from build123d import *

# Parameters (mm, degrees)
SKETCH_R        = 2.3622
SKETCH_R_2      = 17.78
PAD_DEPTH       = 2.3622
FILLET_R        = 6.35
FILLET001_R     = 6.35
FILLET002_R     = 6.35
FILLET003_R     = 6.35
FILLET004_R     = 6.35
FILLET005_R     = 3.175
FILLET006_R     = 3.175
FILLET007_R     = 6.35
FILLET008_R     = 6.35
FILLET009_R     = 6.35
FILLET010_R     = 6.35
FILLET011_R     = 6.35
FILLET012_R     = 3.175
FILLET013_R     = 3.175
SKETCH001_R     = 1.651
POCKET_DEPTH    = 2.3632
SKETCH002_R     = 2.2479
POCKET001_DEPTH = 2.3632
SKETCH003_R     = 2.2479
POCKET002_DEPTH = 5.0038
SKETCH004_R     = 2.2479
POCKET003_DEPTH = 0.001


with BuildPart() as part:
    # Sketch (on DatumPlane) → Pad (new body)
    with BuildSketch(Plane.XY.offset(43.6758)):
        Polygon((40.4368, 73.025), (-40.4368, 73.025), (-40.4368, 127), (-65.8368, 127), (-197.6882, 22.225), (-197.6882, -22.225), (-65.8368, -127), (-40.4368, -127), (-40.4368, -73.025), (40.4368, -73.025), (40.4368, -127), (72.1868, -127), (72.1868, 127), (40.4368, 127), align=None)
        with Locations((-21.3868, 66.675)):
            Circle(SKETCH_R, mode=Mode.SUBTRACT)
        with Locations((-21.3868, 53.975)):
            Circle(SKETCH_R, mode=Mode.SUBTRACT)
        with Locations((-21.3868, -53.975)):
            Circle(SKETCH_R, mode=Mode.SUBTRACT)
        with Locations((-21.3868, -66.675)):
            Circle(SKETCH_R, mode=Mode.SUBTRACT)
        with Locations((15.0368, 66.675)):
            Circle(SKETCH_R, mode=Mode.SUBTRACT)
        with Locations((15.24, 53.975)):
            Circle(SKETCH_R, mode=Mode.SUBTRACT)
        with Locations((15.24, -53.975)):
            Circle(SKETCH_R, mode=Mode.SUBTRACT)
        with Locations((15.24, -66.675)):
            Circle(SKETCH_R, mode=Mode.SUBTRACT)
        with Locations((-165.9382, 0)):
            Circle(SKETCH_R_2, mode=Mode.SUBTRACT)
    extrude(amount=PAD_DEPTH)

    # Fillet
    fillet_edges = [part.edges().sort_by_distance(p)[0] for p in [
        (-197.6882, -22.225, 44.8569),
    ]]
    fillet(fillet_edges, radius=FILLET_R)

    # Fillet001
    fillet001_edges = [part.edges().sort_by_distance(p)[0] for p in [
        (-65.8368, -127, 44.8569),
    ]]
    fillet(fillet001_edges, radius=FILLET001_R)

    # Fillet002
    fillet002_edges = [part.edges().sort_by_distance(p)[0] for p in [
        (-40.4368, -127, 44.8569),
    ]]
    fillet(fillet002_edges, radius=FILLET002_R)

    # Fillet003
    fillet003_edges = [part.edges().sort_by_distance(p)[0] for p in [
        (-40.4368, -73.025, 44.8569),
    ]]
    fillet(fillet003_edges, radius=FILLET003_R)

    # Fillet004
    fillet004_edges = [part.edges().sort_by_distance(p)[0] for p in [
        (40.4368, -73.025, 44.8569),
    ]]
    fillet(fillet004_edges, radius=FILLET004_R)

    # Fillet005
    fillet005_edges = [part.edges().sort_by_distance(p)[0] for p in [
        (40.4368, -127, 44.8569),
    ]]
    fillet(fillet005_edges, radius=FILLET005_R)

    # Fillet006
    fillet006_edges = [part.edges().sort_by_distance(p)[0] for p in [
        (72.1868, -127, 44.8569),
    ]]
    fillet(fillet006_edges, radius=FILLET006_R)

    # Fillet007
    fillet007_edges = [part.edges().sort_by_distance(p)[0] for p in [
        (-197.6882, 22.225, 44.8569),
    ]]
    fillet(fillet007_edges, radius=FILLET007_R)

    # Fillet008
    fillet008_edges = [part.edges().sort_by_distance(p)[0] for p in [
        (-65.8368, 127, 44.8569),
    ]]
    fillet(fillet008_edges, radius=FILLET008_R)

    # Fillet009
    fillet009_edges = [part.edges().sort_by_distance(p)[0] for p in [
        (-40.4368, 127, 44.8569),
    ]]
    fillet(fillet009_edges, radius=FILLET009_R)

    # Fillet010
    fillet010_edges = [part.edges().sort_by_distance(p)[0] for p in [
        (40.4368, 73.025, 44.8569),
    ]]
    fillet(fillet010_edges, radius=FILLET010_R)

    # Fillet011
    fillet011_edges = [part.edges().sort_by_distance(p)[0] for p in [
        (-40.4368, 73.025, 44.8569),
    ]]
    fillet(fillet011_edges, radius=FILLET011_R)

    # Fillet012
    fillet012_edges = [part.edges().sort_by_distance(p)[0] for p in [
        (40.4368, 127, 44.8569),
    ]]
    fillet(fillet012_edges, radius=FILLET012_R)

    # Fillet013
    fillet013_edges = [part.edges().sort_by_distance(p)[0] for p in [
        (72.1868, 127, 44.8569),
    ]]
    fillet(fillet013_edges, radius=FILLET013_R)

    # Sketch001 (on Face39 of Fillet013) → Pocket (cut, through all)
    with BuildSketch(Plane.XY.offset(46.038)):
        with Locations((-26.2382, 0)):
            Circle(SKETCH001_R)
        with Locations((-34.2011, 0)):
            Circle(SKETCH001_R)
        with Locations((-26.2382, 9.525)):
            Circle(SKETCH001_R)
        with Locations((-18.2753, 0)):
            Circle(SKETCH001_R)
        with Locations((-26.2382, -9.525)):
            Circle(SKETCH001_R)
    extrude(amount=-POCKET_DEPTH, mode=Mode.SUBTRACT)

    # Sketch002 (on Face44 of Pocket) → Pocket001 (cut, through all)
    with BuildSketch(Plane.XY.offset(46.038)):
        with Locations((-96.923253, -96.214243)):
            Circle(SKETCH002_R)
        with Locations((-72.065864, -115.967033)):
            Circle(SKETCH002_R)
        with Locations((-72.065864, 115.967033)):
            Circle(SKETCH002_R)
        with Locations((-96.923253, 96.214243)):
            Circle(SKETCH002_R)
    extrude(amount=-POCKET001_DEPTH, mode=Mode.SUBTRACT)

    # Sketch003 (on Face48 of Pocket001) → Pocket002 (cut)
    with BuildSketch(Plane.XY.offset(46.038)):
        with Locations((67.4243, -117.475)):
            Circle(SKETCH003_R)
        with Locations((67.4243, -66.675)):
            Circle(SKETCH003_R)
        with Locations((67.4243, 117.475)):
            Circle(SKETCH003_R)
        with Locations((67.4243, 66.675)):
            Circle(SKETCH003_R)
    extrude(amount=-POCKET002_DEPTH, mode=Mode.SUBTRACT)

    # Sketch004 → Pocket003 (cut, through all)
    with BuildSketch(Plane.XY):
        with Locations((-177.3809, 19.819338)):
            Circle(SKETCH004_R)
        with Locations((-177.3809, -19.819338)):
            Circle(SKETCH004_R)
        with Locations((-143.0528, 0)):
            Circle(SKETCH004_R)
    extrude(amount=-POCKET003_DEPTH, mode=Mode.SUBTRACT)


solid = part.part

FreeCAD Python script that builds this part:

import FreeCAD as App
import Part
import Sketcher

V = App.Vector
Q = App.Units.Quantity


def edges_at(feature, points):
    """Names of the edges that pass closest to the given points."""
    edges = feature.Shape.Edges
    near = lambda p: min(range(len(edges)), key=lambda i: edges[i].distToShape(Part.Vertex(*p))[0])
    return sorted({f"Edge{near(p) + 1}" for p in points})


def add_polygon(sketch, points):
    """Adds a closed chain of lines whose ends are joined by coincident constraints."""
    first, n = sketch.GeometryCount, len(points)
    for a, b in zip(points, points[1:] + points[:1]):
        sketch.addGeometry(Part.LineSegment(App.Vector(*a, 0), App.Vector(*b, 0)), False)
    for i in range(n):
        sketch.addConstraint(Sketcher.Constraint("Coincident", first + i, 2, first + (i + 1) % n, 1))

doc = App.newDocument("Part")
params = doc.addObject("Spreadsheet::Sheet", "Params")
for row, (alias, value) in enumerate([
    ("sketch1_diameter", "1.4 in"),
    ("sketch1_width", "1 in"),
    ("sketch1_height", "10 in"),
    ("sketch1_diameter2", "0.186 in"),
    ("sketch1_width2", "1.25 in"),
    ("pad1_length", "0.093 in"),
    ("fillet_radius", "0.25 in"),
    ("fillet2_radius", "0.25 in"),
    ("fillet3_radius", "0.25 in"),
    ("fillet4_radius", "0.25 in"),
    ("fillet5_radius", "0.25 in"),
    ("fillet6_radius", "0.125 in"),
    ("fillet7_radius", "0.125 in"),
    ("fillet8_radius", "0.25 in"),
    ("fillet9_radius", "0.25 in"),
    ("fillet10_radius", "0.25 in"),
    ("fillet11_radius", "0.25 in"),
    ("fillet12_radius", "0.25 in"),
    ("fillet13_radius", "0.125 in"),
    ("fillet14_radius", "0.125 in"),
    ("sketch2_diameter", "0.13 in"),
    ("sketch3_diameter", "0.177 in"),
    ("sketch4_diameter", "0.177 in"),
    ("pocket3_length", "0.197 in"),
    ("sketch5_diameter", "0.177 in"),
], start=1):
    params.set(f"A{row}", alias)
    params.set(f"B{row}", "=" + value)
    params.setAlias(f"B{row}", alias)

body = doc.addObject("PartDesign::Body", "Body")

sketch1 = doc.addObject("Sketcher::SketchObject", "Sketch")
body.addObject(sketch1)
sketch1.AttachmentSupport = (doc.XY_Plane, [""])
sketch1.MapMode = "FlatFace"
sketch1.AttachmentOffset = App.Placement(V(0, 0, 43.6758), App.Rotation())
add_polygon(sketch1, [(40.4368, 73.025), (-40.4368, 73.025), (-40.4368, 127), (-65.8368, 127), (-197.6882, 22.225), (-197.6882, -22.225), (-65.8368, -127), (-40.4368, -127), (-40.4368, -73.025), (40.4368, -73.025), (40.4368, -127), (72.1868, -127), (72.1868, 127), (40.4368, 127)])
sketch1.addGeometry(Part.Circle(V(-21.3868, -66.675, 0), V(0, 0, 1), 2.3622), False)
sketch1.addGeometry(Part.Circle(V(-21.3868, -53.975, 0), V(0, 0, 1), 2.3622), False)
sketch1.addGeometry(Part.Circle(V(15.24, -66.675, 0), V(0, 0, 1), 2.3622), False)
sketch1.addGeometry(Part.Circle(V(15.24, -53.975, 0), V(0, 0, 1), 2.3622), False)
sketch1.addGeometry(Part.Circle(V(-165.9382, 0, 0), V(0, 0, 1), 17.78), False)
sketch1.addGeometry(Part.Circle(V(-21.3868, 53.975, 0), V(0, 0, 1), 2.3622), False)
sketch1.addGeometry(Part.Circle(V(-21.3868, 66.675, 0), V(0, 0, 1), 2.3622), False)
sketch1.addGeometry(Part.Circle(V(15.24, 53.975, 0), V(0, 0, 1), 2.3622), False)
sketch1.addGeometry(Part.Circle(V(15.0368, 66.675, 0), V(0, 0, 1), 2.3622), False)
sketch1.addConstraint(Sketcher.Constraint("Horizontal", 0))
sketch1.addConstraint(Sketcher.Constraint("Vertical", 1))
sketch1.addConstraint(Sketcher.Constraint("Horizontal", 2))
sketch1.addConstraint(Sketcher.Constraint("Vertical", 4))
sketch1.addConstraint(Sketcher.Constraint("Horizontal", 6))
sketch1.addConstraint(Sketcher.Constraint("Vertical", 7))
sketch1.addConstraint(Sketcher.Constraint("Horizontal", 8))
sketch1.addConstraint(Sketcher.Constraint("Vertical", 9))
sketch1.addConstraint(Sketcher.Constraint("Horizontal", 10))
sketch1.addConstraint(Sketcher.Constraint("Vertical", 11))
sketch1.addConstraint(Sketcher.Constraint("Horizontal", 12))
sketch1.addConstraint(Sketcher.Constraint("Vertical", 13))
sketch1.addConstraint(Sketcher.Constraint("Equal", 14, 15))
sketch1.addConstraint(Sketcher.Constraint("Equal", 15, 16))
sketch1.addConstraint(Sketcher.Constraint("Equal", 16, 17))
sketch1.addConstraint(Sketcher.Constraint("Equal", 17, 19))
sketch1.addConstraint(Sketcher.Constraint("Equal", 19, 20))
sketch1.addConstraint(Sketcher.Constraint("Equal", 20, 21))
sketch1.addConstraint(Sketcher.Constraint("Equal", 21, 22))
sketch1.addConstraint(Sketcher.Constraint("Symmetric", 0, 2, 8, 2, -1, 1))
sketch1.addConstraint(Sketcher.Constraint("Symmetric", 6, 2, 12, 2, -1, 1))
sketch1.addConstraint(Sketcher.Constraint("Symmetric", 6, 2, 9, 2, -2))
sketch1.addConstraint(Sketcher.Constraint("Symmetric", 15, 3, 19, 3, -1))
sketch1.addConstraint(Sketcher.Constraint("Symmetric", 14, 3, 20, 3, -1))
sketch1.addConstraint(Sketcher.Constraint("Symmetric", 17, 3, 21, 3, -1))
sketch1.addConstraint(Sketcher.Constraint("Symmetric", 2, 2, 5, 2, -1))
sketch1.addConstraint(Sketcher.Constraint("PointOnObject", 18, 3, -1))
sketch1.addConstraint(Sketcher.Constraint("Horizontal", 14, 3, 16, 3))
sketch1.addConstraint(Sketcher.Constraint("Horizontal", 15, 3, 17, 3))
sketch1.addConstraint(Sketcher.Constraint("Horizontal", 20, 3, 22, 3))
sketch1.addConstraint(Sketcher.Constraint("Vertical", 14, 3, 15, 3))
sketch1.addConstraint(Sketcher.Constraint("Vertical", 16, 3, 17, 3))
sketch1.addConstraint(Sketcher.Constraint("Equal", 3, 5))
sketch1.addConstraint(Sketcher.Constraint("Diameter", 18, Q("1.4 in")))
sketch1.addConstraint(Sketcher.Constraint("DistanceX", 2, 2, 2, 1, Q("1 in")))
sketch1.addConstraint(Sketcher.Constraint("DistanceY", 11, 1, 11, 2, Q("10 in")))
sketch1.addConstraint(Sketcher.Constraint("Diameter", 14, Q("0.186 in")))
sketch1.addConstraint(Sketcher.Constraint("DistanceY", 15, 3, 0, 2, Q("5 in")))
sketch1.addConstraint(Sketcher.Constraint("DistanceY", 3, 2, 0, 2, Q("2 in")))
sketch1.addConstraint(Sketcher.Constraint("DistanceX", 22, 3, 12, 2, Q("1 in")))
sketch1.addConstraint(Sketcher.Constraint("DistanceX", 10, 1, 10, 2, Q("1.25 in")))
sketch1.addConstraint(Sketcher.Constraint("DistanceY", 4, 2, 4, 1, Q("1.75 in")))
sketch1.addConstraint(Sketcher.Constraint("DistanceX", -1, 1, 16, 3, Q("0.6 in")))
sketch1.addConstraint(Sketcher.Constraint("DistanceY", 14, 3, 15, 3, Q("0.5 in")))
sketch1.addConstraint(Sketcher.Constraint("DistanceX", 0, 2, 0, 1, Q("3.184 in")))
sketch1.addConstraint(Sketcher.Constraint("DistanceX", 0, 2, 20, 3, Q("0.75 in")))
sketch1.addConstraint(Sketcher.Constraint("DistanceX", 3, 2, 18, 3, Q("1.25 in")))
sketch1.addConstraint(Sketcher.Constraint("DistanceX", 18, 3, -1, 1, Q("6.533 in")))
sketch1.setExpression("Constraints[47]", "Params.sketch1_diameter")
sketch1.setExpression("Constraints[48]", "Params.sketch1_width")
sketch1.setExpression("Constraints[49]", "Params.sketch1_height")
sketch1.setExpression("Constraints[50]", "Params.sketch1_diameter2")
sketch1.setExpression("Constraints[54]", "Params.sketch1_width2")
pad1 = doc.addObject("PartDesign::Pad", "Pad")
body.addObject(pad1)
pad1.Profile = sketch1
pad1.setExpression("Length", "Params.pad1_length")
doc.recompute()

fillet = doc.addObject("PartDesign::Fillet", "Fillet")
body.addObject(fillet)
fillet.Base = (pad1, edges_at(pad1, [(-197.688, -22.225, 44.857)]))
fillet.setExpression("Radius", "Params.fillet_radius")
doc.recompute()

fillet2 = doc.addObject("PartDesign::Fillet", "Fillet001")
body.addObject(fillet2)
fillet2.Base = (fillet, edges_at(fillet, [(-65.837, -127, 44.857)]))
fillet2.setExpression("Radius", "Params.fillet2_radius")
doc.recompute()

fillet3 = doc.addObject("PartDesign::Fillet", "Fillet002")
body.addObject(fillet3)
fillet3.Base = (fillet2, edges_at(fillet2, [(-40.437, -127, 44.857)]))
fillet3.setExpression("Radius", "Params.fillet3_radius")
doc.recompute()

fillet4 = doc.addObject("PartDesign::Fillet", "Fillet003")
body.addObject(fillet4)
fillet4.Base = (fillet3, edges_at(fillet3, [(-40.437, -73.025, 44.857)]))
fillet4.setExpression("Radius", "Params.fillet4_radius")
doc.recompute()

fillet5 = doc.addObject("PartDesign::Fillet", "Fillet004")
body.addObject(fillet5)
fillet5.Base = (fillet4, edges_at(fillet4, [(40.437, -73.025, 44.857)]))
fillet5.setExpression("Radius", "Params.fillet5_radius")
doc.recompute()

fillet6 = doc.addObject("PartDesign::Fillet", "Fillet005")
body.addObject(fillet6)
fillet6.Base = (fillet5, edges_at(fillet5, [(40.437, -127, 44.857)]))
fillet6.setExpression("Radius", "Params.fillet6_radius")
doc.recompute()

fillet7 = doc.addObject("PartDesign::Fillet", "Fillet006")
body.addObject(fillet7)
fillet7.Base = (fillet6, edges_at(fillet6, [(72.187, -127, 44.857)]))
fillet7.setExpression("Radius", "Params.fillet7_radius")
doc.recompute()

fillet8 = doc.addObject("PartDesign::Fillet", "Fillet007")
body.addObject(fillet8)
fillet8.Base = (fillet7, edges_at(fillet7, [(-197.688, 22.225, 44.857)]))
fillet8.setExpression("Radius", "Params.fillet8_radius")
doc.recompute()

fillet9 = doc.addObject("PartDesign::Fillet", "Fillet008")
body.addObject(fillet9)
fillet9.Base = (fillet8, edges_at(fillet8, [(-65.837, 127, 44.857)]))
fillet9.setExpression("Radius", "Params.fillet9_radius")
doc.recompute()

fillet10 = doc.addObject("PartDesign::Fillet", "Fillet009")
body.addObject(fillet10)
fillet10.Base = (fillet9, edges_at(fillet9, [(-40.437, 127, 44.857)]))
fillet10.setExpression("Radius", "Params.fillet10_radius")
doc.recompute()

fillet11 = doc.addObject("PartDesign::Fillet", "Fillet010")
body.addObject(fillet11)
fillet11.Base = (fillet10, edges_at(fillet10, [(40.437, 73.025, 44.857)]))
fillet11.setExpression("Radius", "Params.fillet11_radius")
doc.recompute()

fillet12 = doc.addObject("PartDesign::Fillet", "Fillet011")
body.addObject(fillet12)
fillet12.Base = (fillet11, edges_at(fillet11, [(-40.437, 73.025, 44.857)]))
fillet12.setExpression("Radius", "Params.fillet12_radius")
doc.recompute()

fillet13 = doc.addObject("PartDesign::Fillet", "Fillet012")
body.addObject(fillet13)
fillet13.Base = (fillet12, edges_at(fillet12, [(40.437, 127, 44.857)]))
fillet13.setExpression("Radius", "Params.fillet13_radius")
doc.recompute()

fillet14 = doc.addObject("PartDesign::Fillet", "Fillet013")
body.addObject(fillet14)
fillet14.Base = (fillet13, edges_at(fillet13, [(72.187, 127, 44.857)]))
fillet14.setExpression("Radius", "Params.fillet14_radius")

sketch2 = doc.addObject("Sketcher::SketchObject", "Sketch001")
body.addObject(sketch2)
sketch2.AttachmentSupport = (doc.XY_Plane, [""])
sketch2.MapMode = "FlatFace"
sketch2.AttachmentOffset = App.Placement(V(0, 0, 46.038), App.Rotation())
sketch2.addGeometry(Part.Circle(V(-26.2382, 0, 0), V(0, 0, 1), 1.651), False)
sketch2.addGeometry(Part.Circle(V(-34.2011, 0, 0), V(0, 0, 1), 1.651), False)
sketch2.addGeometry(Part.Circle(V(-26.2382, 9.525, 0), V(0, 0, 1), 1.651), False)
sketch2.addGeometry(Part.Circle(V(-18.2753, 0, 0), V(0, 0, 1), 1.651), False)
sketch2.addGeometry(Part.Circle(V(-26.2382, -9.525, 0), V(0, 0, 1), 1.651), False)
sketch2.addConstraint(Sketcher.Constraint("Equal", 0, 1))
sketch2.addConstraint(Sketcher.Constraint("Equal", 1, 2))
sketch2.addConstraint(Sketcher.Constraint("Equal", 2, 3))
sketch2.addConstraint(Sketcher.Constraint("Equal", 3, 4))
sketch2.addConstraint(Sketcher.Constraint("Symmetric", 2, 3, 4, 3, -1))
sketch2.addConstraint(Sketcher.Constraint("PointOnObject", 0, 3, -1))
sketch2.addConstraint(Sketcher.Constraint("PointOnObject", 1, 3, -1))
sketch2.addConstraint(Sketcher.Constraint("PointOnObject", 3, 3, -1))
sketch2.addConstraint(Sketcher.Constraint("Vertical", 0, 3, 2, 3))
sketch2.addConstraint(Sketcher.Constraint("Diameter", 0, Q("0.13 in")))
sketch2.addConstraint(Sketcher.Constraint("DistanceY", 4, 3, 2, 3, Q("0.75 in")))
sketch2.addConstraint(Sketcher.Constraint("DistanceX", 0, 3, -1, 1, Q("1.033 in")))
sketch2.addConstraint(Sketcher.Constraint("DistanceX", 1, 3, 3, 3, Q("0.627 in")))
sketch2.addConstraint(Sketcher.Constraint("DistanceX", 1, 3, -1, 1, Q("1.3465 in")))
sketch2.setExpression("Constraints[9]", "Params.sketch2_diameter")
pocket1 = doc.addObject("PartDesign::Pocket", "Pocket")
body.addObject(pocket1)
pocket1.Profile = sketch2
pocket1.Type = "ThroughAll"

sketch3 = doc.addObject("Sketcher::SketchObject", "Sketch002")
body.addObject(sketch3)
sketch3.AttachmentSupport = (doc.XY_Plane, [""])
sketch3.MapMode = "FlatFace"
sketch3.AttachmentOffset = App.Placement(V(0, 0, 46.038), App.Rotation())
sketch3.addGeometry(Part.Circle(V(-96.923253, -96.214243, 0), V(0, 0, 1), 2.2479), False)
sketch3.addGeometry(Part.Circle(V(-72.065864, -115.967033, 0), V(0, 0, 1), 2.2479), False)
sketch3.addGeometry(Part.Circle(V(-72.065864, 115.967033, 0), V(0, 0, 1), 2.2479), False)
sketch3.addGeometry(Part.Circle(V(-96.923253, 96.214243, 0), V(0, 0, 1), 2.2479), False)
sketch3.addConstraint(Sketcher.Constraint("Equal", 0, 1))
sketch3.addConstraint(Sketcher.Constraint("Equal", 1, 2))
sketch3.addConstraint(Sketcher.Constraint("Equal", 2, 3))
sketch3.addConstraint(Sketcher.Constraint("Symmetric", 1, 3, 2, 3, -1))
sketch3.addConstraint(Sketcher.Constraint("Symmetric", 0, 3, 3, 3, -1))
sketch3.addConstraint(Sketcher.Constraint("Diameter", 0, Q("0.177 in")))
sketch3.addConstraint(Sketcher.Constraint("DistanceX", 0, 3, 1, 3, Q("24.857389 mm")))
sketch3.addConstraint(Sketcher.Constraint("DistanceY", 1, 3, 0, 3, Q("19.75279 mm")))
sketch3.addConstraint(Sketcher.Constraint("DistanceX", 0, 3, -1, 1, Q("96.923253 mm")))
sketch3.addConstraint(Sketcher.Constraint("DistanceY", 0, 3, -1, 1, Q("96.214243 mm")))
sketch3.setExpression("Constraints[5]", "Params.sketch3_diameter")
pocket2 = doc.addObject("PartDesign::Pocket", "Pocket001")
body.addObject(pocket2)
pocket2.Profile = sketch3
pocket2.Type = "ThroughAll"

sketch4 = doc.addObject("Sketcher::SketchObject", "Sketch003")
body.addObject(sketch4)
sketch4.AttachmentSupport = (doc.XY_Plane, [""])
sketch4.MapMode = "FlatFace"
sketch4.AttachmentOffset = App.Placement(V(0, 0, 46.038), App.Rotation())
sketch4.addGeometry(Part.Circle(V(67.4243, -117.475, 0), V(0, 0, 1), 2.2479), False)
sketch4.addGeometry(Part.Circle(V(67.4243, -66.675, 0), V(0, 0, 1), 2.2479), False)
sketch4.addGeometry(Part.Circle(V(67.4243, 117.475, 0), V(0, 0, 1), 2.2479), False)
sketch4.addGeometry(Part.Circle(V(67.4243, 66.675, 0), V(0, 0, 1), 2.2479), False)
sketch4.addConstraint(Sketcher.Constraint("Equal", 0, 1))
sketch4.addConstraint(Sketcher.Constraint("Equal", 1, 2))
sketch4.addConstraint(Sketcher.Constraint("Equal", 2, 3))
sketch4.addConstraint(Sketcher.Constraint("Symmetric", 0, 3, 2, 3, -1))
sketch4.addConstraint(Sketcher.Constraint("Symmetric", 1, 3, 3, 3, -1))
sketch4.addConstraint(Sketcher.Constraint("Vertical", 0, 3, 1, 3))
sketch4.addConstraint(Sketcher.Constraint("Diameter", 0, Q("0.177 in")))
sketch4.addConstraint(Sketcher.Constraint("DistanceY", 0, 3, 1, 3, Q("2 in")))
sketch4.addConstraint(Sketcher.Constraint("DistanceY", 1, 3, 2, 3, Q("7.25 in")))
sketch4.addConstraint(Sketcher.Constraint("DistanceX", -1, 1, 0, 3, Q("2.6545 in")))
sketch4.setExpression("Constraints[6]", "Params.sketch4_diameter")
pocket3 = doc.addObject("PartDesign::Pocket", "Pocket002")
body.addObject(pocket3)
pocket3.Profile = sketch4
pocket3.setExpression("Length", "Params.pocket3_length")

sketch5 = doc.addObject("Sketcher::SketchObject", "Sketch004")
body.addObject(sketch5)
sketch5.AttachmentSupport = (doc.XY_Plane, [""])
sketch5.MapMode = "FlatFace"
sketch5.addGeometry(Part.Circle(V(-177.3809, 19.819338, 0), V(0, 0, 1), 2.2479), False)
sketch5.addGeometry(Part.Circle(V(-177.3809, -19.819338, 0), V(0, 0, 1), 2.2479), False)
sketch5.addGeometry(Part.Circle(V(-143.0528, 0, 0), V(0, 0, 1), 2.2479), False)
sketch5.addConstraint(Sketcher.Constraint("Equal", 0, 1))
sketch5.addConstraint(Sketcher.Constraint("Equal", 1, 2))
sketch5.addConstraint(Sketcher.Constraint("Symmetric", 0, 3, 1, 3, -1))
sketch5.addConstraint(Sketcher.Constraint("PointOnObject", 2, 3, -1))
sketch5.addConstraint(Sketcher.Constraint("Diameter", 0, Q("0.177 in")))
sketch5.addConstraint(Sketcher.Constraint("DistanceX", 2, 3, -1, 1, Q("5.632 in")))
sketch5.addConstraint(Sketcher.Constraint("DistanceX", 0, 3, -1, 1, Q("6.9835 in")))
sketch5.addConstraint(Sketcher.Constraint("DistanceY", -1, 1, 0, 3, Q("19.819338 mm")))
sketch5.setExpression("Constraints[4]", "Params.sketch5_diameter")
pocket4 = doc.addObject("PartDesign::Pocket", "Pocket003")
body.addObject(pocket4)
pocket4.Profile = sketch5
pocket4.Type = "ThroughAll"

doc.recompute()
